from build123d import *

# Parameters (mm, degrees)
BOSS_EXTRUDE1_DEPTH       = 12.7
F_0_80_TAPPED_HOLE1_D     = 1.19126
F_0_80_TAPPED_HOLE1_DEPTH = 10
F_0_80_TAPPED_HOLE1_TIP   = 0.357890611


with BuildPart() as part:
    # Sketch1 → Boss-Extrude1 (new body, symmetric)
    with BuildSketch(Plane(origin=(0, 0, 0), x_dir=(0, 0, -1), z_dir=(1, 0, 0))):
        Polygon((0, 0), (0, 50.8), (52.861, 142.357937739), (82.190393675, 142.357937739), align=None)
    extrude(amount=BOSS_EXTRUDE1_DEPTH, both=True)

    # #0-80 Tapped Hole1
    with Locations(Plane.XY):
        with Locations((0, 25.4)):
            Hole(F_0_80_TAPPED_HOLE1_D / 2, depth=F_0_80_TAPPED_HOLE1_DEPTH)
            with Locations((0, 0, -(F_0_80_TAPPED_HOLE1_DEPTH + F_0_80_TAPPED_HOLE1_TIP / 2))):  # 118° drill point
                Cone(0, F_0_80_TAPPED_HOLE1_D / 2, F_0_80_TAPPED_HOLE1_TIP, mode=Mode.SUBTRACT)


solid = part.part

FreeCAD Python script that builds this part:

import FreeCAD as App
import Part
import Sketcher
Q = App.Units.Quantity


def add_polygon(sketch, points):
    """Adds a closed chain of lines whose ends are joined by coincident constraints."""
    first, n = sketch.GeometryCount, len(points)
    for a, b in zip(points, points[1:] + points[:1]):
        sketch.addGeometry(Part.LineSegment(App.Vector(*a, 0), App.Vector(*b, 0)), False)
    for i in range(n):
        sketch.addConstraint(Sketcher.Constraint("Coincident", first + i, 2, first + (i + 1) % n, 1))

doc = App.newDocument("Part")
body = doc.addObject("PartDesign::Body", "Body")

# Sketch on YZ plane
sketch1 = body.newObject("Sketcher::SketchObject", "Sketch")
sketch1.AttachmentSupport = (doc.getObject("YZ_Plane"), [""])
sketch1.MapMode = "FlatFace"
add_polygon(sketch1, [(51, 0), (0, 0), (142, -82), (142, -53)])  # lines 0-3
sketch1.addConstraint(Sketcher.Constraint("Horizontal", 0))
sketch1.addConstraint(Sketcher.Constraint("Vertical", 2))
sketch1.addConstraint(Sketcher.Constraint("Coincident", 0, 2, -1, 1))
sketch1.addConstraint(Sketcher.Constraint("Parallel", 1, 3))
sketch1.addConstraint(Sketcher.Constraint("DistanceX", 0, 2, 0, 1, Q("2 in")))
sketch1.addConstraint(Sketcher.Constraint("Angle", 1, Q("-30 deg")))
sketch1.addConstraint(Sketcher.Constraint("Distance", 3, Q("105.722 mm")))
pad1 = body.newObject("PartDesign::Pad", "Pad")
pad1.Profile = sketch1
pad1.Length = Q("1 in")
pad1.Midplane = True

# Sketch on XY plane
sketch2 = body.newObject("Sketcher::SketchObject", "Sketch001")
sketch2.AttachmentSupport = (doc.getObject("XY_Plane"), [""])
sketch2.MapMode = "FlatFace"
sketch2.addGeometry(Part.Circle(App.Vector(0, 25.4, 0), App.Vector(0, 0, 1), 0.6), False)
sketch2.addConstraint(Sketcher.Constraint("PointOnObject", 0, 3, -2))
sketch2.addConstraint(Sketcher.Constraint("DistanceY", -1, 1, 0, 3, Q("1 in")))
sketch2.addConstraint(Sketcher.Constraint("Diameter", 0, Q("0.0469 in")))
doc.recompute()
hole = body.newObject("PartDesign::Hole", "Hole")
hole.Profile = sketch2
hole.ThreadType = "None"
hole.Diameter = Q("0.0469 in")
hole.DepthType = "Dimension"
hole.Depth = 10
hole.DrillPoint = "Angled"
hole.DrillPointAngle = 118

doc.recompute()
